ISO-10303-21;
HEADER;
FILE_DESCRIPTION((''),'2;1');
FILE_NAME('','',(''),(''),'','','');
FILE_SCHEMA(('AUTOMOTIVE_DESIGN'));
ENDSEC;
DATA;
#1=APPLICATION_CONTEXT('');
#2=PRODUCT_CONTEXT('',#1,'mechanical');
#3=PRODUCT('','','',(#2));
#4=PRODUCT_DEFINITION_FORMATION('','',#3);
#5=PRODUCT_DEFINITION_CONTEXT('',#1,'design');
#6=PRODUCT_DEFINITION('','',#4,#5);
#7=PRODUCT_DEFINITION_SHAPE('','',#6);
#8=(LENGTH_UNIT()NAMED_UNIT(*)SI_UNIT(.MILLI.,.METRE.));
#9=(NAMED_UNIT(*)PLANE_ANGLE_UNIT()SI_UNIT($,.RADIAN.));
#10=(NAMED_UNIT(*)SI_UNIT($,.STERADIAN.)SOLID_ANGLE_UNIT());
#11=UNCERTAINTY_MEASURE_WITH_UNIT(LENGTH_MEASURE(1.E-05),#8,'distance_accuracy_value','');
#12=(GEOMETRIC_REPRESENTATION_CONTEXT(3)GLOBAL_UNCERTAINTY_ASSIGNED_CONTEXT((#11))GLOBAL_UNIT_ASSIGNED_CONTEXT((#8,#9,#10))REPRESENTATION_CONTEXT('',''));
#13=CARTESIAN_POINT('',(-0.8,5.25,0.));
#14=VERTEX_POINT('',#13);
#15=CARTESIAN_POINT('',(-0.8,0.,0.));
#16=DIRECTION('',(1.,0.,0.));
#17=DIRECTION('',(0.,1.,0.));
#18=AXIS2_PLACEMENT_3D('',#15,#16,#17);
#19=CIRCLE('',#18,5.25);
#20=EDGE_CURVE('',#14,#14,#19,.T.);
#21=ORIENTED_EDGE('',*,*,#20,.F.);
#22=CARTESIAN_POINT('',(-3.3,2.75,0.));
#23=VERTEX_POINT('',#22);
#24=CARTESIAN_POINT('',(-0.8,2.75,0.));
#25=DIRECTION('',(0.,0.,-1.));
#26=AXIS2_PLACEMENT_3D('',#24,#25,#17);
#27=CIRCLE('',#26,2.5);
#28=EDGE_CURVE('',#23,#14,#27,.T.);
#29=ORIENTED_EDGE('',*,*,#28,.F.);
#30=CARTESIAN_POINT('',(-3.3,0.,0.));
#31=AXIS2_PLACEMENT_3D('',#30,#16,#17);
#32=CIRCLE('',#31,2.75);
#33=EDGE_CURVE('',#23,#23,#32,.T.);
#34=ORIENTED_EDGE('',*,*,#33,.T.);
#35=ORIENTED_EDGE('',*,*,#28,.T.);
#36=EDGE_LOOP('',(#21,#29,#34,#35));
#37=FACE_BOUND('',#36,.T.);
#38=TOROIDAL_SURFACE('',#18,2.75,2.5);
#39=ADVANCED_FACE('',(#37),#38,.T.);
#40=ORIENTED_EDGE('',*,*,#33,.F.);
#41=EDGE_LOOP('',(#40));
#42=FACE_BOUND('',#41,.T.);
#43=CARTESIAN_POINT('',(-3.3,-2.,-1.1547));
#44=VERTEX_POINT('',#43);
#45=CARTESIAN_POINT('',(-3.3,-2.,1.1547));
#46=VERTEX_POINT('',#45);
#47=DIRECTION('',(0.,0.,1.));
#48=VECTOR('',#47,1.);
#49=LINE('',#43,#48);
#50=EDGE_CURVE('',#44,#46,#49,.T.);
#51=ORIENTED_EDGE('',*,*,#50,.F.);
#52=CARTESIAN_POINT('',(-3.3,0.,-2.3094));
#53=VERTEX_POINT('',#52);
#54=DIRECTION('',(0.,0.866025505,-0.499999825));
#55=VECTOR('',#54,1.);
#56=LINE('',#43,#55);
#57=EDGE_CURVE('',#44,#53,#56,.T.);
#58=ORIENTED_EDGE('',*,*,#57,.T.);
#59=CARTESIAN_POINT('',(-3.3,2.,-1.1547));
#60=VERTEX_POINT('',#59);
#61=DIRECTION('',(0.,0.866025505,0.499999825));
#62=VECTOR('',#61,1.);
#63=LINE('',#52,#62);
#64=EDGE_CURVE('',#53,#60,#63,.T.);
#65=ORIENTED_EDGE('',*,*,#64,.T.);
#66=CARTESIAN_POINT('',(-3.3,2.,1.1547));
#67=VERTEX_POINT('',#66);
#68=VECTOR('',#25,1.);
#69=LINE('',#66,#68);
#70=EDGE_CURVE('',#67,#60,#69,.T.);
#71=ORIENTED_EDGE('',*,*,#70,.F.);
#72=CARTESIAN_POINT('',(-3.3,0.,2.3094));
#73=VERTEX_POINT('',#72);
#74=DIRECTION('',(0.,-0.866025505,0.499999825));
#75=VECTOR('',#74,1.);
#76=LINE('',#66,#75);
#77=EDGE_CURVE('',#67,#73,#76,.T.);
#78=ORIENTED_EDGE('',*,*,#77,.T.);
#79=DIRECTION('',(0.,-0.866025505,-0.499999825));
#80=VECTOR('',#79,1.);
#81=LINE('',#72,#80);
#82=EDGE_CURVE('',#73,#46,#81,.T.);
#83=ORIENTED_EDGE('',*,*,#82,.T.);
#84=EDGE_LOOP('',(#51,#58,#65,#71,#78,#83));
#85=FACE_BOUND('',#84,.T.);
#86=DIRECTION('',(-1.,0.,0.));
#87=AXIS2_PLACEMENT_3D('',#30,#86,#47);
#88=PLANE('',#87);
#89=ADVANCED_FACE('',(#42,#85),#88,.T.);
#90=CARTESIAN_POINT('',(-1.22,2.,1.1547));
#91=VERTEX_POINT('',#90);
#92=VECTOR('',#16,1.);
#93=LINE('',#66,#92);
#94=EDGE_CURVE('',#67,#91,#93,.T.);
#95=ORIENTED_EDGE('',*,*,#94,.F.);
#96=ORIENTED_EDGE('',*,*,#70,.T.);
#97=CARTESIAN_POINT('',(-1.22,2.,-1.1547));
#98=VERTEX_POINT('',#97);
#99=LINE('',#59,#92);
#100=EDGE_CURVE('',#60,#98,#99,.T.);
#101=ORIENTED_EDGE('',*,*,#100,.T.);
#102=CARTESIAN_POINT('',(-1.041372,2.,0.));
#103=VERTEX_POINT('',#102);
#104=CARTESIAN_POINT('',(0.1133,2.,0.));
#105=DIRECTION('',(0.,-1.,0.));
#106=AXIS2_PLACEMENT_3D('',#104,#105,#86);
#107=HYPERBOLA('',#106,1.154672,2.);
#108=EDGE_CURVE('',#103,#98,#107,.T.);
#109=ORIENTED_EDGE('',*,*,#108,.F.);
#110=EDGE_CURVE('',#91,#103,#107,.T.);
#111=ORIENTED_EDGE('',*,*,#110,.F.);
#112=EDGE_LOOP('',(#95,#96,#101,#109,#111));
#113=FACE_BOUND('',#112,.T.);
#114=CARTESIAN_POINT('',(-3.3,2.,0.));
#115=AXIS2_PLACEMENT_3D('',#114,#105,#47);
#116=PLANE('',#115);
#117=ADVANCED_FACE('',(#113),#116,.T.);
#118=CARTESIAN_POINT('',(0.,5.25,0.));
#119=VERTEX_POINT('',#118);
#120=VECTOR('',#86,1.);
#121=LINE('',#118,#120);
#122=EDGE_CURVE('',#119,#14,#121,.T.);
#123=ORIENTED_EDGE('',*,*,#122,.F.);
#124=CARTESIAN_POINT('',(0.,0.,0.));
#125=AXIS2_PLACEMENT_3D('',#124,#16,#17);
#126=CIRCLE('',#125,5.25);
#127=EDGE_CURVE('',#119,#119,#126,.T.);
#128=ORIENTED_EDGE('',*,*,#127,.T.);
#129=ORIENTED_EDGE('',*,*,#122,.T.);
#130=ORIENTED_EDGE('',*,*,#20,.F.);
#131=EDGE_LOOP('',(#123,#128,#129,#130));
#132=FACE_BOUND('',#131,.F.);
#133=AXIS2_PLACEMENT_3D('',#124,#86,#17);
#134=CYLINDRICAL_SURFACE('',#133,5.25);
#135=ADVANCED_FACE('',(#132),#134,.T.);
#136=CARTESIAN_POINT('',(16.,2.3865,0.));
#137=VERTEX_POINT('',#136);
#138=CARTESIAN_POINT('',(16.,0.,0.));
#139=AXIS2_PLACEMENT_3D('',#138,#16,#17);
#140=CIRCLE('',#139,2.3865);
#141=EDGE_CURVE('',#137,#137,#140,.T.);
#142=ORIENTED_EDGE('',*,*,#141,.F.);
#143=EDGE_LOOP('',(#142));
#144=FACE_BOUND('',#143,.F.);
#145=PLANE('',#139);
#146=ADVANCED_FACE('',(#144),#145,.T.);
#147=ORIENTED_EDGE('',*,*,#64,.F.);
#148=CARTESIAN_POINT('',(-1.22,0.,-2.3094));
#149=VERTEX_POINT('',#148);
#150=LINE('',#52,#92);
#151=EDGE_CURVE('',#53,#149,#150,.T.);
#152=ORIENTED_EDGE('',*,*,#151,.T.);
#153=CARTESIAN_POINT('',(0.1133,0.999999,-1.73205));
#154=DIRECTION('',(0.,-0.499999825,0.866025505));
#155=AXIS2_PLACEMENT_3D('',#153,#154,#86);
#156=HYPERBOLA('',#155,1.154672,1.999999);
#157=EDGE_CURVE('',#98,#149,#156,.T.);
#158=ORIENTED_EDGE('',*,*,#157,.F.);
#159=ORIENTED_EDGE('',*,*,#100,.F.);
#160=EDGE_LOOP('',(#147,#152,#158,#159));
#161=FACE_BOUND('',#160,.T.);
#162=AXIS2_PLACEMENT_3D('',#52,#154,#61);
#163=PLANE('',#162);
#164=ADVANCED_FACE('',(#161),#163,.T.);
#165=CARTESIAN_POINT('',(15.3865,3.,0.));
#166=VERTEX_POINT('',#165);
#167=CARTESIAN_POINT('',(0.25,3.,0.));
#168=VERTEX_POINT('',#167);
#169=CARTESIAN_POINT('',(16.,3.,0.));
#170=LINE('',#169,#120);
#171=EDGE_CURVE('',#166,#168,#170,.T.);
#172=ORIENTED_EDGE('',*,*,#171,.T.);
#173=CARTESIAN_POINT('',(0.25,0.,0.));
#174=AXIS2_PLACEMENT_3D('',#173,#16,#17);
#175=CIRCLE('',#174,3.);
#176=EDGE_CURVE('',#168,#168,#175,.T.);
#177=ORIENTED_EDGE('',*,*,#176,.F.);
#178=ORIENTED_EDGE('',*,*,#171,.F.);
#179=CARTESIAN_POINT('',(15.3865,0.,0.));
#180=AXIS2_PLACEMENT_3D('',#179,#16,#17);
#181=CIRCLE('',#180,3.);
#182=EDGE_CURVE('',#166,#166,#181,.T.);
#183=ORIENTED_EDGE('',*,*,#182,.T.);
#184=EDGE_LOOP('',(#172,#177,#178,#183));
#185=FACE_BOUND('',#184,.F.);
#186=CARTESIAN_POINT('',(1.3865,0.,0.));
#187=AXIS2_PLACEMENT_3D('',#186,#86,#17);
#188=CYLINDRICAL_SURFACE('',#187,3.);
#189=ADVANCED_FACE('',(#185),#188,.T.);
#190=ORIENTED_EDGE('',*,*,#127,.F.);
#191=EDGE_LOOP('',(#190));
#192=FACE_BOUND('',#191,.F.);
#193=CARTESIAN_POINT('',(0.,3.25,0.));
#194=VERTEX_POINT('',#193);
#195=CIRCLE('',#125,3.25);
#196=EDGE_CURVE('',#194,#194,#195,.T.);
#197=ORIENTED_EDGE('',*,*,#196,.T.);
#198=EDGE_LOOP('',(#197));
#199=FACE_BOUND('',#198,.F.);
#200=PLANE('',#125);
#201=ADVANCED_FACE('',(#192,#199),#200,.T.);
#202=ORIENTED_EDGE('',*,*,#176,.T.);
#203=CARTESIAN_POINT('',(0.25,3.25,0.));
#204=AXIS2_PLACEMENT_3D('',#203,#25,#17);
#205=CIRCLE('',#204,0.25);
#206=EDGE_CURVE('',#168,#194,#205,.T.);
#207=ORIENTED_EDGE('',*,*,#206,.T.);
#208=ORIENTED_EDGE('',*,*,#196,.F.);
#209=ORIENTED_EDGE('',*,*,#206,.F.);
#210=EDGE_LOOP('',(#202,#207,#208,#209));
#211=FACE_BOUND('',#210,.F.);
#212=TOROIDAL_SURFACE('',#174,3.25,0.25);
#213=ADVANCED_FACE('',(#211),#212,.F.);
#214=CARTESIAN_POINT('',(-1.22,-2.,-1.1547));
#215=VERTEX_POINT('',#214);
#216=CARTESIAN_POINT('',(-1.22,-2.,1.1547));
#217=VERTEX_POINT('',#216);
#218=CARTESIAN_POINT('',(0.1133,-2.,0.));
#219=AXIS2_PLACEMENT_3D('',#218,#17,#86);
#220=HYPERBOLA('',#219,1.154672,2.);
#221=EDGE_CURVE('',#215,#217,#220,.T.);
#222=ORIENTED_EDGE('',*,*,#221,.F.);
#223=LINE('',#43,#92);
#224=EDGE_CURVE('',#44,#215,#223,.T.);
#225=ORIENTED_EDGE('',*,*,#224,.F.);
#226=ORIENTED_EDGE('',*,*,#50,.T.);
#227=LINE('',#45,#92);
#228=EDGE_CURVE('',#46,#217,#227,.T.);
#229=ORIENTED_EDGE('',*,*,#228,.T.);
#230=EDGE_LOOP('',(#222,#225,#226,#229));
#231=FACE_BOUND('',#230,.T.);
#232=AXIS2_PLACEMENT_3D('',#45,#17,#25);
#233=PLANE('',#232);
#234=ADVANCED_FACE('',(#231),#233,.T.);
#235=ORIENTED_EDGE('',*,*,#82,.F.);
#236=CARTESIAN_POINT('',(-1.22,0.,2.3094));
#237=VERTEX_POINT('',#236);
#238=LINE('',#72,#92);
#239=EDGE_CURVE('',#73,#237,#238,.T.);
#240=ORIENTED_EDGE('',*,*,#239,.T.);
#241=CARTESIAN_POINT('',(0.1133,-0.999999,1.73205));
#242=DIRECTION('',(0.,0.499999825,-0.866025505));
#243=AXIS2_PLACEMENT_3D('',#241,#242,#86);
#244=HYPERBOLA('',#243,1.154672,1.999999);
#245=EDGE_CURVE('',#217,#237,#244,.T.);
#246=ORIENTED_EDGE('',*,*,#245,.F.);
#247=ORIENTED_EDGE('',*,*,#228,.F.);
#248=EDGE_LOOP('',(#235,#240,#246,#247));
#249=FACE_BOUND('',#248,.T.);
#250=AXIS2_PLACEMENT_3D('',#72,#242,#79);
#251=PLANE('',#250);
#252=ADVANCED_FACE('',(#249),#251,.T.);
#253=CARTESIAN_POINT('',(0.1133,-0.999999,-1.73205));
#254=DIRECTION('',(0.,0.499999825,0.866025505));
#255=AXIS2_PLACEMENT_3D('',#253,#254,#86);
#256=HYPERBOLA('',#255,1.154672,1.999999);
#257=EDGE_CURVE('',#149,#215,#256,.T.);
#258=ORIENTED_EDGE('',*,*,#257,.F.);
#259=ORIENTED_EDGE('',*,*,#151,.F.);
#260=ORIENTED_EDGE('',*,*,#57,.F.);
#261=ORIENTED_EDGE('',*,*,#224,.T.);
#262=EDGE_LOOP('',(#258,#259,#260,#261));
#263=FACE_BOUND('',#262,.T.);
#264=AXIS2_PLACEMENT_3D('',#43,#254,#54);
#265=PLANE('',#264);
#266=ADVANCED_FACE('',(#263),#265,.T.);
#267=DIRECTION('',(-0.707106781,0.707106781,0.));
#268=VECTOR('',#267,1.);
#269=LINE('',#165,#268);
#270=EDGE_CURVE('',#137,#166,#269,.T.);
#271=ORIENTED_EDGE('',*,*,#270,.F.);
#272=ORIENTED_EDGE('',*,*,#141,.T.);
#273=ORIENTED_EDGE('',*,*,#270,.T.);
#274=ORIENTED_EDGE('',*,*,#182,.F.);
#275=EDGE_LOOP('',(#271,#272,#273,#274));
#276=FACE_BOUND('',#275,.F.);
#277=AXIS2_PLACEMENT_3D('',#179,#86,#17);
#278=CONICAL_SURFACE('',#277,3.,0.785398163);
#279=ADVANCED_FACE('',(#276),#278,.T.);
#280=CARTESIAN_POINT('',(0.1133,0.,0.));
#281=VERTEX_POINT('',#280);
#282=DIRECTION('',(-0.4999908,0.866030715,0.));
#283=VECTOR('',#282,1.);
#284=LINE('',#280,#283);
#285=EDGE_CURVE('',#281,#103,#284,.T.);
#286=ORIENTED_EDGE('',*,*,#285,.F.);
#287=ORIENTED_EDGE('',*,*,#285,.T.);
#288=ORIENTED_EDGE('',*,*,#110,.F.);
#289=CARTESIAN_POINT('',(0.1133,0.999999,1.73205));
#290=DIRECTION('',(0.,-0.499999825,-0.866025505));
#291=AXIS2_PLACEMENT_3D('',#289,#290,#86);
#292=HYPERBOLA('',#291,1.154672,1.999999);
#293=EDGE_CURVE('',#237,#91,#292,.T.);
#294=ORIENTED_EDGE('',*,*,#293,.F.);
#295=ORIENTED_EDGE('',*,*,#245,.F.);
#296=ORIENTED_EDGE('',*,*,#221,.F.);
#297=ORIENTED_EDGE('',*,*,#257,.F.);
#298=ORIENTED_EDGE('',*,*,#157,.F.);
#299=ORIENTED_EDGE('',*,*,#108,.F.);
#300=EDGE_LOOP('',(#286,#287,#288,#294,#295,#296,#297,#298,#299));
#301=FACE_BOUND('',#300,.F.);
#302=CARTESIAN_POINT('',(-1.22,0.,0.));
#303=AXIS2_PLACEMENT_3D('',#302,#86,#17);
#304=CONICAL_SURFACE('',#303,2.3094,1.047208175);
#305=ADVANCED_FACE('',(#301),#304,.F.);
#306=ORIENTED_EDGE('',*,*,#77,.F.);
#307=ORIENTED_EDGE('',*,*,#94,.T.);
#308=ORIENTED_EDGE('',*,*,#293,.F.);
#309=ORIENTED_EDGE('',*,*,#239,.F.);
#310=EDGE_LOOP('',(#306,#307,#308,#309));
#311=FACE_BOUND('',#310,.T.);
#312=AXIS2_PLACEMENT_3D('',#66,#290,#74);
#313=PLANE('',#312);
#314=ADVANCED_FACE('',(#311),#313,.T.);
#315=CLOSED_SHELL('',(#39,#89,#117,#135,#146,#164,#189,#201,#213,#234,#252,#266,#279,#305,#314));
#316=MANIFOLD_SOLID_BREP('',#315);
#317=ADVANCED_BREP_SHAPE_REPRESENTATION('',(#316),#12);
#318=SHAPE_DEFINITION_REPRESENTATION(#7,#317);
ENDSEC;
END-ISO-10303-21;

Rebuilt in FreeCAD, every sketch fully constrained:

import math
import FreeCAD as App
import Part
import Sketcher

V = App.Vector
Q = App.Units.Quantity


def edges_at(feature, points):
    """Names of the edges that pass closest to the given points."""
    edges = feature.Shape.Edges
    near = lambda p: min(range(len(edges)), key=lambda i: edges[i].distToShape(Part.Vertex(*p))[0])
    return sorted({f"Edge{near(p) + 1}" for p in points})

doc = App.newDocument("Part")
body = doc.addObject("PartDesign::Body", "Body")

sketch1 = doc.addObject("Sketcher::SketchObject", "Sketch")
body.addObject(sketch1)
sketch1.AttachmentSupport = (doc.XY_Plane, [""])
sketch1.MapMode = "FlatFace"
sketch1.addGeometry([
    Part.LineSegment(V(0.1, 0, 0), V(16, 0, 0)),
    Part.LineSegment(V(16, 0, 0), V(16, 3, 0)),
    Part.LineSegment(V(16, 3, 0), V(0, 3, 0)),
    Part.LineSegment(V(0, 3, 0), V(0, 5.2, 0)),
    Part.LineSegment(V(0, 5.2, 0), V(-3.3, 5.2, 0)),
    Part.LineSegment(V(-3.3, 5.2, 0), V(-3.3, 2.3, 0)),
    Part.LineSegment(V(-3.3, 2.3, 0), V(-1.2, 2.3, 0)),
    Part.LineSegment(V(-1.2, 2.3, 0), V(0.1, 0, 0)),
], False)
sketch1.addConstraint([
    Sketcher.Constraint("Coincident", 0, 2, 1, 1),
    Sketcher.Constraint("Coincident", 1, 2, 2, 1),
    Sketcher.Constraint("Coincident", 2, 2, 3, 1),
    Sketcher.Constraint("Coincident", 3, 2, 4, 1),
    Sketcher.Constraint("Coincident", 4, 2, 5, 1),
    Sketcher.Constraint("Coincident", 5, 2, 6, 1),
    Sketcher.Constraint("Coincident", 6, 2, 7, 1),
    Sketcher.Constraint("Coincident", 7, 2, 0, 1),
    Sketcher.Constraint("Horizontal", 0),
    Sketcher.Constraint("Vertical", 1),
    Sketcher.Constraint("Horizontal", 2),
    Sketcher.Constraint("Vertical", 3),
    Sketcher.Constraint("Horizontal", 4),
    Sketcher.Constraint("Vertical", 5),
    Sketcher.Constraint("Horizontal", 6),
    Sketcher.Constraint("PointOnObject", 0, 2, -1),
    Sketcher.Constraint("PointOnObject", 2, 2, -2),
    Sketcher.Constraint("DistanceX", 2, 2, 2, 1, Q("16 mm")),
    Sketcher.Constraint("DistanceX", 4, 2, 4, 1, Q("3.3 mm")),
    Sketcher.Constraint("DistanceX", 6, 1, 6, 2, Q("2.08 mm")),
    Sketcher.Constraint("DistanceY", 1, 1, 1, 2, Q("3 mm")),
    Sketcher.Constraint("Angle", 7, Q("-60.0006 deg")),
    Sketcher.Constraint("DistanceY", 3, 1, 3, 2, Q("2.25 mm")),
    Sketcher.Constraint("DistanceX", 0, 1, 0, 2, Q("15.8867 mm")),
])
revolution = doc.addObject("PartDesign::Revolution", "Revolution")
body.addObject(revolution)
revolution.Profile = sketch1
revolution.ReferenceAxis = (sketch1, ["H_Axis"])
revolution.Angle = 360

sketch2 = doc.addObject("Sketcher::SketchObject", "Sketch001")
body.addObject(sketch2)
sketch2.AttachmentSupport = (doc.YZ_Plane, [""])
sketch2.MapMode = "FlatFace"
sketch2.AttachmentOffset = App.Placement(V(0, 0, -3.3), App.Rotation())
sketch2.addGeometry([
    Part.LineSegment(V(2, 1.2, 0), V(0, 2.3, 0)),
    Part.ArcOfCircle(Part.Circle(V(0, 0, 0), V(0, 0, 1), 2.3), math.radians(30), math.radians(90)),
    Part.ArcOfCircle(Part.Circle(V(0, 0, 0), V(0, 0, 1), 2.3), math.radians(90), math.radians(150)),
    Part.LineSegment(V(0, 2.3, 0), V(-2, 1.2, 0)),
    Part.ArcOfCircle(Part.Circle(V(0, 0, 0), V(0, 0, 1), 2.3), math.radians(-30), math.radians(30)),
    Part.LineSegment(V(2, -1.2, 0), V(2, 1.2, 0)),
    Part.LineSegment(V(-2, 1.2, 0), V(-2, -1.2, 0)),
    Part.ArcOfCircle(Part.Circle(V(0, 0, 0), V(0, 0, 1), 2.3), math.radians(150), math.radians(210)),
    Part.LineSegment(V(-2, -1.2, 0), V(0, -2.3, 0)),
    Part.ArcOfCircle(Part.Circle(V(0, 0, 0), V(0, 0, 1), 2.3), math.radians(-150), math.radians(-90)),
    Part.ArcOfCircle(Part.Circle(V(0, 0, 0), V(0, 0, 1), 2.3), math.radians(-90), math.radians(-30)),
    Part.LineSegment(V(0, -2.3, 0), V(2, -1.2, 0)),
], False)
sketch2.addConstraint([
    Sketcher.Constraint("Coincident", 0, 1, 1, 1),
    Sketcher.Constraint("Coincident", 1, 2, 0, 2),
    Sketcher.Constraint("Coincident", 2, 1, 3, 1),
    Sketcher.Constraint("Coincident", 3, 2, 2, 2),
    Sketcher.Constraint("Coincident", 4, 1, 5, 1),
    Sketcher.Constraint("Coincident", 5, 2, 4, 2),
    Sketcher.Constraint("Coincident", 6, 1, 7, 1),
    Sketcher.Constraint("Coincident", 7, 2, 6, 2),
    Sketcher.Constraint("Coincident", 8, 1, 9, 1),
    Sketcher.Constraint("Coincident", 9, 2, 8, 2),
    Sketcher.Constraint("Coincident", 10, 1, 11, 1),
    Sketcher.Constraint("Coincident", 11, 2, 10, 2),
    Sketcher.Constraint("Vertical", 5),
    Sketcher.Constraint("Vertical", 6),
    Sketcher.Constraint("Coincident", 1, 3, -1, 1),
    Sketcher.Constraint("Coincident", 2, 3, -1, 1),
    Sketcher.Constraint("Coincident", 4, 3, -1, 1),
    Sketcher.Constraint("Coincident", 7, 3, -1, 1),
    Sketcher.Constraint("Coincident", 9, 3, -1, 1),
    Sketcher.Constraint("Coincident", 10, 3, -1, 1),
    Sketcher.Constraint("Coincident", 2, 1, 1, 2),
    Sketcher.Constraint("Coincident", 5, 2, 0, 1),
    Sketcher.Constraint("Coincident", 6, 1, 3, 2),
    Sketcher.Constraint("Coincident", 8, 1, 7, 2),
    Sketcher.Constraint("Coincident", 10, 1, 9, 2),
    Sketcher.Constraint("PointOnObject", 1, 2, -2),
    Sketcher.Constraint("PointOnObject", 9, 2, -2),
    Sketcher.Constraint("Parallel", 0, 8),
    Sketcher.Constraint("Parallel", 3, 11),
    Sketcher.Constraint("Angle", 0, Q("150 deg")),
    Sketcher.Constraint("DistanceX", -1, 1, 0, 1, Q("2 mm")),
])
pad1 = doc.addObject("PartDesign::Pad", "Pad")
body.addObject(pad1)
pad1.Profile = sketch2
pad1.Length = 2.2586
doc.recompute()

fillet = doc.addObject("PartDesign::Fillet", "Fillet")
body.addObject(fillet)
fillet.Base = (pad1, edges_at(pad1, [(-3.3, -5.25, 0)]))
fillet.Radius = 2.5
doc.recompute()

chamfer = doc.addObject("PartDesign::Chamfer", "Chamfer")
body.addObject(chamfer)
chamfer.Base = (fillet, edges_at(fillet, [(16, -3, 0)]))
chamfer.ChamferType = "Two distances"
chamfer.Size = 0.6135
chamfer.Size2 = 0.6135
doc.recompute()

fillet2 = doc.addObject("PartDesign::Fillet", "Fillet001")
body.addObject(fillet2)
fillet2.Base = (chamfer, edges_at(chamfer, [(0, -3, 0)]))
fillet2.Radius = 0.25

doc.recompute()
